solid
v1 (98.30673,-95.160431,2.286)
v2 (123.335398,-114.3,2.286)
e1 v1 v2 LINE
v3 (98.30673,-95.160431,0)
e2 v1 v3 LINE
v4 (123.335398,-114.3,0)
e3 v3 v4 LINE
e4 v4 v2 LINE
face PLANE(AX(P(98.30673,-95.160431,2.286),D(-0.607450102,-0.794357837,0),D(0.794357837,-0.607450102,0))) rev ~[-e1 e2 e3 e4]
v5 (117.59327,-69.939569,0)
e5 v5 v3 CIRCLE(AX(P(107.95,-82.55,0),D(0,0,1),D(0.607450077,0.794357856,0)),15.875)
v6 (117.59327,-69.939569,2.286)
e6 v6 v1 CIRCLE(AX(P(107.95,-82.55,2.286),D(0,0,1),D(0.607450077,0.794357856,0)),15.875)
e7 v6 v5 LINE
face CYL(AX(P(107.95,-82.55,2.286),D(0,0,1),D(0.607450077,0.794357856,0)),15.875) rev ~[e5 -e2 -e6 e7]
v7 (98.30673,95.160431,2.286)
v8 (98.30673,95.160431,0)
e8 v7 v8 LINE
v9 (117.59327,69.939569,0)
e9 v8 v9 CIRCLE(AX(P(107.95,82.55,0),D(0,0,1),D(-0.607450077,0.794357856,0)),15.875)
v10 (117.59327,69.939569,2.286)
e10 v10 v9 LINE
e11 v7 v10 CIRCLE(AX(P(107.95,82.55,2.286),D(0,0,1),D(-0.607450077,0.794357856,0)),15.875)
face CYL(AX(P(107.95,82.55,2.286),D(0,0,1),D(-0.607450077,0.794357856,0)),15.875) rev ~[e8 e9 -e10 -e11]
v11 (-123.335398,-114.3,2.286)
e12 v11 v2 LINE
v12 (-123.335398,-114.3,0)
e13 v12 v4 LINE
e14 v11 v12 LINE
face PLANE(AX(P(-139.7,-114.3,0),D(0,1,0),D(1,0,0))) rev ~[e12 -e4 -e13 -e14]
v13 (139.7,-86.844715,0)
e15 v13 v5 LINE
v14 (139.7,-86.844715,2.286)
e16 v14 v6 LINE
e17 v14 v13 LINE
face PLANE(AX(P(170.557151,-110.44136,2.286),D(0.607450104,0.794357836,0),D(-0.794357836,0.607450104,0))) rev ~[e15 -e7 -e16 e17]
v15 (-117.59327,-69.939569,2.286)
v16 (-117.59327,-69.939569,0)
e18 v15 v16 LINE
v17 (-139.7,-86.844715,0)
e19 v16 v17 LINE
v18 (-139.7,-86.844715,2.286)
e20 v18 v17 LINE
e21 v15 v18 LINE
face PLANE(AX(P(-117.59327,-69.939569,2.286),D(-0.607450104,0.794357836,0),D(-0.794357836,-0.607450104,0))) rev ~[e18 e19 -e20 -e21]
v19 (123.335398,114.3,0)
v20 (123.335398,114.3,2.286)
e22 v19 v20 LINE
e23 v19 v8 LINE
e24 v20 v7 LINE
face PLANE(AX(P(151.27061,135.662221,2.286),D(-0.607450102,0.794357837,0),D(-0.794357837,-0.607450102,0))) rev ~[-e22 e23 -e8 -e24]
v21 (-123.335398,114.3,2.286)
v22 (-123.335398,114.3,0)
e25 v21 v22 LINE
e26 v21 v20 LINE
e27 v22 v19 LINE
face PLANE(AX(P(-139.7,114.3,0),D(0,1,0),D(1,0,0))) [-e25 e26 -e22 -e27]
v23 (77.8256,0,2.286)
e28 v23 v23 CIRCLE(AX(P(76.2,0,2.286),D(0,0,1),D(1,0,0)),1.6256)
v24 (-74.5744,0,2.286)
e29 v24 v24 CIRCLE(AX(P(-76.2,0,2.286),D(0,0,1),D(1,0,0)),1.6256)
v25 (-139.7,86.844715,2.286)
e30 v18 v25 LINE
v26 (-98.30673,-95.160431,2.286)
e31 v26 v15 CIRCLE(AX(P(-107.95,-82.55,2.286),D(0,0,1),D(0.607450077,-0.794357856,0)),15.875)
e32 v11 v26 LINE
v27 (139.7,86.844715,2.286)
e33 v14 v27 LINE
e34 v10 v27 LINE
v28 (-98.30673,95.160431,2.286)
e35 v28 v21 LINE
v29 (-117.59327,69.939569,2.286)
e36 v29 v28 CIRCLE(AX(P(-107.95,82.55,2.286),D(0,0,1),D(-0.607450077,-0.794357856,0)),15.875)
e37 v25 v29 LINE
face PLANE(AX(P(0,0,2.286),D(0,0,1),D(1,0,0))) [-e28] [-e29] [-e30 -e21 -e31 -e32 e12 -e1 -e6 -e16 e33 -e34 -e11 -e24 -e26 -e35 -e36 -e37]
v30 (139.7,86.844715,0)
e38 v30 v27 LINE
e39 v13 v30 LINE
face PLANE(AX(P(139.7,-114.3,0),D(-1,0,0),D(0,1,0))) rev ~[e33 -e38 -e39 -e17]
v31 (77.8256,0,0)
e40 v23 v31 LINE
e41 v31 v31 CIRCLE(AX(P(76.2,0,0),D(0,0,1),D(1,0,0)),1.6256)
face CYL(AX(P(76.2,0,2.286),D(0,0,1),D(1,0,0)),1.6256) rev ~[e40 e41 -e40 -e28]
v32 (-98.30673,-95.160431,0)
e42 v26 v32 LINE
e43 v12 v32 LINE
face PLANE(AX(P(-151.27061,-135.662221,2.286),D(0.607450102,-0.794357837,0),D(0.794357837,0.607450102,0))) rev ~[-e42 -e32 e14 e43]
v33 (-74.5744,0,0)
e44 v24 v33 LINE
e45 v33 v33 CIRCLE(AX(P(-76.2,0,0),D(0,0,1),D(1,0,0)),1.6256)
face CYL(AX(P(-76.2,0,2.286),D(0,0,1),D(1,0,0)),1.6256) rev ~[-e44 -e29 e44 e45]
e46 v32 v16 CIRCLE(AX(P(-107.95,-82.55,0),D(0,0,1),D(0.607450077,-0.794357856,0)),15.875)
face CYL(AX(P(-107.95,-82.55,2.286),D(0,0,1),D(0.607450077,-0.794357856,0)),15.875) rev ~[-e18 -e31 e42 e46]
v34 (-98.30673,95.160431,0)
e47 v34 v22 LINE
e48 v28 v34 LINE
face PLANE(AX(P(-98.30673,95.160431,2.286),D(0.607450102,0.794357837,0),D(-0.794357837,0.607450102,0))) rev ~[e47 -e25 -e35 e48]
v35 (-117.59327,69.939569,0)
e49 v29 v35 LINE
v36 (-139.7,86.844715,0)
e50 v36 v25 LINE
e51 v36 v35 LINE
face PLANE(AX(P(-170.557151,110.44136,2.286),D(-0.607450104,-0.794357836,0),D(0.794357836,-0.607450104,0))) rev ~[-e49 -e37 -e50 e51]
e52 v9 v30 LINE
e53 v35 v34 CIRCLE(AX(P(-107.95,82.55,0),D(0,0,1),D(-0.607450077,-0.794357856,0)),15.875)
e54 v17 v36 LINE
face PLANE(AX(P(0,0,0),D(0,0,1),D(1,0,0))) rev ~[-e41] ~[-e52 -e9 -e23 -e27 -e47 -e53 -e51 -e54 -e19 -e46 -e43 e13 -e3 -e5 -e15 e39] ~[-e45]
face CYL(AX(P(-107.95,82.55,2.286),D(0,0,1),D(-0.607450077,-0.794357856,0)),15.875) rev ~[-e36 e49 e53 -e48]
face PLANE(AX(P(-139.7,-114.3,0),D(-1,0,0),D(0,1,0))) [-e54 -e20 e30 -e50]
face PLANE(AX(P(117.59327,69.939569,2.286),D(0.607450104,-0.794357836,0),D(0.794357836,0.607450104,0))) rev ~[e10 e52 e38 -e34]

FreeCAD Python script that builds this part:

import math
import FreeCAD as App
import Part
import Sketcher
Q = App.Units.Quantity

doc = App.newDocument("Part")
body = doc.addObject("PartDesign::Body", "Body")

# Sketch on XY plane
sketch1 = body.newObject("Sketcher::SketchObject", "Sketch")
sketch1.AttachmentSupport = (doc.getObject("XY_Plane"), [""])
sketch1.MapMode = "FlatFace"
sketch1.addGeometry([
    Part.LineSegment(App.Vector(-140, 114, 0), App.Vector(-140, -114, 0)),
    Part.LineSegment(App.Vector(-140, -114, 0), App.Vector(140, -114, 0)),
    Part.LineSegment(App.Vector(140, -114, 0), App.Vector(140, 114, 0)),
    Part.LineSegment(App.Vector(140, 114, 0), App.Vector(-140, 114, 0)),
], False)
sketch1.addConstraint([
    Sketcher.Constraint("Coincident", 0, 2, 1, 1),
    Sketcher.Constraint("Coincident", 1, 2, 2, 1),
    Sketcher.Constraint("Coincident", 2, 2, 3, 1),
    Sketcher.Constraint("Coincident", 3, 2, 0, 1),
    Sketcher.Constraint("Vertical", 0),
    Sketcher.Constraint("Horizontal", 1),
    Sketcher.Constraint("Vertical", 2),
    Sketcher.Constraint("Horizontal", 3),
    Sketcher.Constraint("Symmetric", 0, 2, 2, 2, -1, 1),
    Sketcher.Constraint("DistanceX", 1, 1, 1, 2, Q("11 in")),
    Sketcher.Constraint("DistanceY", 0, 2, 0, 1, Q("9 in")),
])
pad1 = body.newObject("PartDesign::Pad", "Pad")
pad1.Profile = sketch1
pad1.Length = Q("0.09 in")

# Sketch on XY plane
sketch2 = body.newObject("Sketcher::SketchObject", "Sketch001")
sketch2.AttachmentSupport = (doc.getObject("XY_Plane"), [""])
sketch2.MapMode = "FlatFace"
sketch2.AttachmentOffset = App.Placement(App.Vector(0, 0, 0.09 * 25.4), App.Rotation())
sketch2.addGeometry([
    Part.LineSegment(App.Vector(-171, 110, 0), App.Vector(-118, 70, 0)),  # 0
    Part.ArcOfCircle(Part.Circle(App.Vector(-108, 83, 0), App.Vector(0, 0, 1), 16), math.radians(-127), math.radians(53)),  # 1
    Part.LineSegment(App.Vector(-98, 95, 0), App.Vector(-151, 136, 0)),  # 2
    Part.LineSegment(App.Vector(-151, 136, 0), App.Vector(-171, 110, 0)),  # 3
    Part.LineSegment(App.Vector(151, 136, 0), App.Vector(98, 95, 0)),  # 4
    Part.ArcOfCircle(Part.Circle(App.Vector(108, 83, 0), App.Vector(0, 0, 1), 16), math.radians(127), math.radians(307)),  # 5
    Part.LineSegment(App.Vector(118, 70, 0), App.Vector(171, 110, 0)),  # 6
    Part.LineSegment(App.Vector(171, 110, 0), App.Vector(151, 136, 0)),  # 7
    Part.LineSegment(App.Vector(171, -110, 0), App.Vector(118, -70, 0)),  # 8
    Part.ArcOfCircle(Part.Circle(App.Vector(108, -83, 0), App.Vector(0, 0, 1), 16), math.radians(53), math.radians(233)),  # 9
    Part.LineSegment(App.Vector(98, -95, 0), App.Vector(151, -136, 0)),  # 10
    Part.LineSegment(App.Vector(151, -136, 0), App.Vector(171, -110, 0)),  # 11
    Part.LineSegment(App.Vector(-151, -136, 0), App.Vector(-98, -95, 0)),  # 12
    Part.ArcOfCircle(Part.Circle(App.Vector(-108, -83, 0), App.Vector(0, 0, 1), 16), math.radians(-53), math.radians(127)),  # 13
    Part.LineSegment(App.Vector(-118, -70, 0), App.Vector(-171, -110, 0)),  # 14
    Part.LineSegment(App.Vector(-171, -110, 0), App.Vector(-151, -136, 0)),  # 15
], False)
sketch2.addConstraint([
    Sketcher.Constraint("Tangent", 0, 2, 1, 1),
    Sketcher.Constraint("Tangent", 1, 2, 2, 1),
    Sketcher.Constraint("Coincident", 2, 2, 3, 1),
    Sketcher.Constraint("Coincident", 3, 2, 0, 1),
    Sketcher.Constraint("Tangent", 4, 2, 5, 1),
    Sketcher.Constraint("Tangent", 5, 2, 6, 1),
    Sketcher.Constraint("Coincident", 6, 2, 7, 1),
    Sketcher.Constraint("Coincident", 7, 2, 4, 1),
    Sketcher.Constraint("Tangent", 8, 2, 9, 1),
    Sketcher.Constraint("Tangent", 9, 2, 10, 1),
    Sketcher.Constraint("Coincident", 10, 2, 11, 1),
    Sketcher.Constraint("Coincident", 11, 2, 8, 1),
    Sketcher.Constraint("Tangent", 12, 2, 13, 1),
    Sketcher.Constraint("Tangent", 13, 2, 14, 1),
    Sketcher.Constraint("Coincident", 14, 2, 15, 1),
    Sketcher.Constraint("Coincident", 15, 2, 12, 1),
    Sketcher.Constraint("Equal", 1, 5),
    Sketcher.Constraint("Equal", 5, 9),
    Sketcher.Constraint("Equal", 9, 13),
    Sketcher.Constraint("Symmetric", 1, 3, 9, 3, -1, 1),
    Sketcher.Constraint("Symmetric", 5, 3, 13, 3, -1, 1),
    Sketcher.Constraint("Symmetric", 2, 2, 10, 2, -1, 1),
    Sketcher.Constraint("Symmetric", 3, 2, 11, 2, -1, 1),
    Sketcher.Constraint("Symmetric", 6, 2, 14, 2, -1, 1),
    Sketcher.Constraint("Symmetric", 7, 2, 15, 2, -1, 1),
    Sketcher.Constraint("Symmetric", 1, 3, 5, 3, -2),
    Sketcher.Constraint("Symmetric", 3, 2, 6, 2, -2),
    Sketcher.Constraint("Symmetric", 2, 2, 7, 2, -2),
    Sketcher.Constraint("Parallel", 0, 2),
    Sketcher.Constraint("Perpendicular", 2, 3),
    Sketcher.Constraint("Radius", 1, Q("0.625 in")),
    Sketcher.Constraint("DistanceX", 1, 3, 5, 3, Q("8.5 in")),
    Sketcher.Constraint("DistanceY", 9, 3, 5, 3, Q("6.5 in")),
    Sketcher.Constraint("Distance", 0, 66.675091),
    Sketcher.Constraint("DistanceX", 0, 2, -1, 1, 117.59327),
])
pocket1 = body.newObject("PartDesign::Pocket", "Pocket")
pocket1.Profile = sketch2
pocket1.Type = "ThroughAll"

# Sketch on XY plane
sketch3 = body.newObject("Sketcher::SketchObject", "Sketch002")
sketch3.AttachmentSupport = (doc.getObject("XY_Plane"), [""])
sketch3.MapMode = "FlatFace"
sketch3.AttachmentOffset = App.Placement(App.Vector(0, 0, 0.09 * 25.4), App.Rotation())
sketch3.addGeometry([
    Part.Circle(App.Vector(76.2, 0, 0), App.Vector(0, 0, 1), 1.6),
    Part.Circle(App.Vector(-76.2, 0, 0), App.Vector(0, 0, 1), 1.6),
], False)
sketch3.addConstraint([
    Sketcher.Constraint("Equal", 0, 1),
    Sketcher.Constraint("Symmetric", 0, 3, 1, 3, -1, 1),
    Sketcher.Constraint("PointOnObject", 0, 3, -1),
    Sketcher.Constraint("Diameter", 0, Q("0.128 in")),
    Sketcher.Constraint("DistanceX", -1, 1, 0, 3, Q("3 in")),
])
pocket2 = body.newObject("PartDesign::Pocket", "Pocket001")
pocket2.Profile = sketch3
pocket2.Type = "ThroughAll"

doc.recompute()
